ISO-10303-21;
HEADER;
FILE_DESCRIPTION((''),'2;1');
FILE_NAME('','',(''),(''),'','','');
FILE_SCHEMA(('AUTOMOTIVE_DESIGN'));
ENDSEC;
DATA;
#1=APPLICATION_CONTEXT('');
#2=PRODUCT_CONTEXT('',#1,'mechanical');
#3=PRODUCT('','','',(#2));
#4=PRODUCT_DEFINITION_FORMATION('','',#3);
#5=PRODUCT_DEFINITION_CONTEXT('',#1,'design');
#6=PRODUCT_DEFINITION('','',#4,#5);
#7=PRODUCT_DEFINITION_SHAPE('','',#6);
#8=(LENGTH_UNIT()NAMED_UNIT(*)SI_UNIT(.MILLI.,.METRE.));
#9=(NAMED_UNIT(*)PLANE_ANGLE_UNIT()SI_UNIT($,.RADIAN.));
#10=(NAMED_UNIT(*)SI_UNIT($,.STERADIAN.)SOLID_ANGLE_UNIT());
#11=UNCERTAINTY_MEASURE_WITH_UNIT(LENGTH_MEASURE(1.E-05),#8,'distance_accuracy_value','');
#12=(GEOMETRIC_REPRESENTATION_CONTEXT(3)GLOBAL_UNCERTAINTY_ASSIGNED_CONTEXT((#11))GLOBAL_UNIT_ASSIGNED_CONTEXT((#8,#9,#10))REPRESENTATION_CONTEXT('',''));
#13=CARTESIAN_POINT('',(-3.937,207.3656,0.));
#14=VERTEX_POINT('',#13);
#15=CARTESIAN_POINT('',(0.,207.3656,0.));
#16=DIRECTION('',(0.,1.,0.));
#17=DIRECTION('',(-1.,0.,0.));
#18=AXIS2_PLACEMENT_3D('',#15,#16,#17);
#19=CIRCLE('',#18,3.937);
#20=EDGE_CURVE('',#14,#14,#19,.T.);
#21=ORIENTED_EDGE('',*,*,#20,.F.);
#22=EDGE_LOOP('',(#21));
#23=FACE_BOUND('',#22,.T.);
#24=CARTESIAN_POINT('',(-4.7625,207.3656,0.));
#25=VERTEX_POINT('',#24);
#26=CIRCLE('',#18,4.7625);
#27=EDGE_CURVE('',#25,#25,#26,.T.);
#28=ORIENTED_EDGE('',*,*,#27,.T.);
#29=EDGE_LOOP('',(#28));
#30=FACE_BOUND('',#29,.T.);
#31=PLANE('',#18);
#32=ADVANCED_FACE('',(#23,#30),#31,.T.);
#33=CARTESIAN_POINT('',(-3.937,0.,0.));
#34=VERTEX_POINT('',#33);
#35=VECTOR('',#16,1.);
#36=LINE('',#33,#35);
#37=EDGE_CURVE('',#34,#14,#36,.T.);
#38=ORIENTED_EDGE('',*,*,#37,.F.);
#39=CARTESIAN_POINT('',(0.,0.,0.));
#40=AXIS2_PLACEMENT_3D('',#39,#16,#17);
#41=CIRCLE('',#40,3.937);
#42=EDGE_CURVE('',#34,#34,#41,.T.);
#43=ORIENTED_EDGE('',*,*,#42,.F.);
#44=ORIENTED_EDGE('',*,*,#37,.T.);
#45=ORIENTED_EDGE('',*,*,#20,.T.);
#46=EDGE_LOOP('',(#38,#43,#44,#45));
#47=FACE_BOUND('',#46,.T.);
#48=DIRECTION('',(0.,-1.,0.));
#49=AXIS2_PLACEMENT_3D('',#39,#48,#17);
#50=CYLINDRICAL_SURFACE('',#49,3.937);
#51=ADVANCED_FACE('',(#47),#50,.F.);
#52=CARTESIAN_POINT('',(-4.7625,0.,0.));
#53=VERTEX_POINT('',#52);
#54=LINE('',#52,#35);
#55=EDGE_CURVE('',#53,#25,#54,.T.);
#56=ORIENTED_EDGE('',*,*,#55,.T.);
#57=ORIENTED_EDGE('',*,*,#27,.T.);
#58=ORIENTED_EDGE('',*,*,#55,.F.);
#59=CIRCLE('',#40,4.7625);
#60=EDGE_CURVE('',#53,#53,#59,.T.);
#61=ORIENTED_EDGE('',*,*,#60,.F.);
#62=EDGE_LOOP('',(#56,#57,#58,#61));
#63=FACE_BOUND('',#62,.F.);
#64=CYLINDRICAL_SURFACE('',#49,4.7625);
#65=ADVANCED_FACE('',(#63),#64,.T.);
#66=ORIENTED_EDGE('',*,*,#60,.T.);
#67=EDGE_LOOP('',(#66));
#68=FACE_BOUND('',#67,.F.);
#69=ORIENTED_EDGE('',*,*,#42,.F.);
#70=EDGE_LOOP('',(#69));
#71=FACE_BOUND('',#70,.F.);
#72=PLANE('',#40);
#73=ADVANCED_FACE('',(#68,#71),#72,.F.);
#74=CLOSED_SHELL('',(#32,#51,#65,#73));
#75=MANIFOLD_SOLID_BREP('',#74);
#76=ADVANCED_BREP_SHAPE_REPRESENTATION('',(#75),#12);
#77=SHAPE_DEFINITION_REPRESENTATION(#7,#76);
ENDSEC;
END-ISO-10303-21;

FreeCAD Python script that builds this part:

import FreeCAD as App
import Part
import Sketcher

V = App.Vector
Q = App.Units.Quantity

doc = App.newDocument("Part")
body = doc.addObject("PartDesign::Body", "Body")

# Sketch on XZ plane
sketch1 = body.newObject("Sketcher::SketchObject", "Sketch")
sketch1.AttachmentSupport = (doc.getObject("XZ_Plane"), [""])
sketch1.MapMode = "FlatFace"
sketch1.addGeometry(Part.Circle(V(0, 0, 0), V(0, 0, 1), 4.7625), False)
sketch1.addGeometry(Part.Circle(V(0, 0, 0), V(0, 0, 1), 3.937), False)
sketch1.addConstraint(Sketcher.Constraint("Coincident", 0, 3, -1, 1))
sketch1.addConstraint(Sketcher.Constraint("Coincident", 1, 3, -1, 1))
sketch1.addConstraint(Sketcher.Constraint("Diameter", 1, Q("0.31 in")))
sketch1.addConstraint(Sketcher.Constraint("Diameter", 0, Q("0.375 in")))
pad1 = body.newObject("PartDesign::Pad", "Pad")
pad1.Profile = sketch1
pad1.Length = Q("8.164 in")
pad1.Reversed = True

doc.recompute()
